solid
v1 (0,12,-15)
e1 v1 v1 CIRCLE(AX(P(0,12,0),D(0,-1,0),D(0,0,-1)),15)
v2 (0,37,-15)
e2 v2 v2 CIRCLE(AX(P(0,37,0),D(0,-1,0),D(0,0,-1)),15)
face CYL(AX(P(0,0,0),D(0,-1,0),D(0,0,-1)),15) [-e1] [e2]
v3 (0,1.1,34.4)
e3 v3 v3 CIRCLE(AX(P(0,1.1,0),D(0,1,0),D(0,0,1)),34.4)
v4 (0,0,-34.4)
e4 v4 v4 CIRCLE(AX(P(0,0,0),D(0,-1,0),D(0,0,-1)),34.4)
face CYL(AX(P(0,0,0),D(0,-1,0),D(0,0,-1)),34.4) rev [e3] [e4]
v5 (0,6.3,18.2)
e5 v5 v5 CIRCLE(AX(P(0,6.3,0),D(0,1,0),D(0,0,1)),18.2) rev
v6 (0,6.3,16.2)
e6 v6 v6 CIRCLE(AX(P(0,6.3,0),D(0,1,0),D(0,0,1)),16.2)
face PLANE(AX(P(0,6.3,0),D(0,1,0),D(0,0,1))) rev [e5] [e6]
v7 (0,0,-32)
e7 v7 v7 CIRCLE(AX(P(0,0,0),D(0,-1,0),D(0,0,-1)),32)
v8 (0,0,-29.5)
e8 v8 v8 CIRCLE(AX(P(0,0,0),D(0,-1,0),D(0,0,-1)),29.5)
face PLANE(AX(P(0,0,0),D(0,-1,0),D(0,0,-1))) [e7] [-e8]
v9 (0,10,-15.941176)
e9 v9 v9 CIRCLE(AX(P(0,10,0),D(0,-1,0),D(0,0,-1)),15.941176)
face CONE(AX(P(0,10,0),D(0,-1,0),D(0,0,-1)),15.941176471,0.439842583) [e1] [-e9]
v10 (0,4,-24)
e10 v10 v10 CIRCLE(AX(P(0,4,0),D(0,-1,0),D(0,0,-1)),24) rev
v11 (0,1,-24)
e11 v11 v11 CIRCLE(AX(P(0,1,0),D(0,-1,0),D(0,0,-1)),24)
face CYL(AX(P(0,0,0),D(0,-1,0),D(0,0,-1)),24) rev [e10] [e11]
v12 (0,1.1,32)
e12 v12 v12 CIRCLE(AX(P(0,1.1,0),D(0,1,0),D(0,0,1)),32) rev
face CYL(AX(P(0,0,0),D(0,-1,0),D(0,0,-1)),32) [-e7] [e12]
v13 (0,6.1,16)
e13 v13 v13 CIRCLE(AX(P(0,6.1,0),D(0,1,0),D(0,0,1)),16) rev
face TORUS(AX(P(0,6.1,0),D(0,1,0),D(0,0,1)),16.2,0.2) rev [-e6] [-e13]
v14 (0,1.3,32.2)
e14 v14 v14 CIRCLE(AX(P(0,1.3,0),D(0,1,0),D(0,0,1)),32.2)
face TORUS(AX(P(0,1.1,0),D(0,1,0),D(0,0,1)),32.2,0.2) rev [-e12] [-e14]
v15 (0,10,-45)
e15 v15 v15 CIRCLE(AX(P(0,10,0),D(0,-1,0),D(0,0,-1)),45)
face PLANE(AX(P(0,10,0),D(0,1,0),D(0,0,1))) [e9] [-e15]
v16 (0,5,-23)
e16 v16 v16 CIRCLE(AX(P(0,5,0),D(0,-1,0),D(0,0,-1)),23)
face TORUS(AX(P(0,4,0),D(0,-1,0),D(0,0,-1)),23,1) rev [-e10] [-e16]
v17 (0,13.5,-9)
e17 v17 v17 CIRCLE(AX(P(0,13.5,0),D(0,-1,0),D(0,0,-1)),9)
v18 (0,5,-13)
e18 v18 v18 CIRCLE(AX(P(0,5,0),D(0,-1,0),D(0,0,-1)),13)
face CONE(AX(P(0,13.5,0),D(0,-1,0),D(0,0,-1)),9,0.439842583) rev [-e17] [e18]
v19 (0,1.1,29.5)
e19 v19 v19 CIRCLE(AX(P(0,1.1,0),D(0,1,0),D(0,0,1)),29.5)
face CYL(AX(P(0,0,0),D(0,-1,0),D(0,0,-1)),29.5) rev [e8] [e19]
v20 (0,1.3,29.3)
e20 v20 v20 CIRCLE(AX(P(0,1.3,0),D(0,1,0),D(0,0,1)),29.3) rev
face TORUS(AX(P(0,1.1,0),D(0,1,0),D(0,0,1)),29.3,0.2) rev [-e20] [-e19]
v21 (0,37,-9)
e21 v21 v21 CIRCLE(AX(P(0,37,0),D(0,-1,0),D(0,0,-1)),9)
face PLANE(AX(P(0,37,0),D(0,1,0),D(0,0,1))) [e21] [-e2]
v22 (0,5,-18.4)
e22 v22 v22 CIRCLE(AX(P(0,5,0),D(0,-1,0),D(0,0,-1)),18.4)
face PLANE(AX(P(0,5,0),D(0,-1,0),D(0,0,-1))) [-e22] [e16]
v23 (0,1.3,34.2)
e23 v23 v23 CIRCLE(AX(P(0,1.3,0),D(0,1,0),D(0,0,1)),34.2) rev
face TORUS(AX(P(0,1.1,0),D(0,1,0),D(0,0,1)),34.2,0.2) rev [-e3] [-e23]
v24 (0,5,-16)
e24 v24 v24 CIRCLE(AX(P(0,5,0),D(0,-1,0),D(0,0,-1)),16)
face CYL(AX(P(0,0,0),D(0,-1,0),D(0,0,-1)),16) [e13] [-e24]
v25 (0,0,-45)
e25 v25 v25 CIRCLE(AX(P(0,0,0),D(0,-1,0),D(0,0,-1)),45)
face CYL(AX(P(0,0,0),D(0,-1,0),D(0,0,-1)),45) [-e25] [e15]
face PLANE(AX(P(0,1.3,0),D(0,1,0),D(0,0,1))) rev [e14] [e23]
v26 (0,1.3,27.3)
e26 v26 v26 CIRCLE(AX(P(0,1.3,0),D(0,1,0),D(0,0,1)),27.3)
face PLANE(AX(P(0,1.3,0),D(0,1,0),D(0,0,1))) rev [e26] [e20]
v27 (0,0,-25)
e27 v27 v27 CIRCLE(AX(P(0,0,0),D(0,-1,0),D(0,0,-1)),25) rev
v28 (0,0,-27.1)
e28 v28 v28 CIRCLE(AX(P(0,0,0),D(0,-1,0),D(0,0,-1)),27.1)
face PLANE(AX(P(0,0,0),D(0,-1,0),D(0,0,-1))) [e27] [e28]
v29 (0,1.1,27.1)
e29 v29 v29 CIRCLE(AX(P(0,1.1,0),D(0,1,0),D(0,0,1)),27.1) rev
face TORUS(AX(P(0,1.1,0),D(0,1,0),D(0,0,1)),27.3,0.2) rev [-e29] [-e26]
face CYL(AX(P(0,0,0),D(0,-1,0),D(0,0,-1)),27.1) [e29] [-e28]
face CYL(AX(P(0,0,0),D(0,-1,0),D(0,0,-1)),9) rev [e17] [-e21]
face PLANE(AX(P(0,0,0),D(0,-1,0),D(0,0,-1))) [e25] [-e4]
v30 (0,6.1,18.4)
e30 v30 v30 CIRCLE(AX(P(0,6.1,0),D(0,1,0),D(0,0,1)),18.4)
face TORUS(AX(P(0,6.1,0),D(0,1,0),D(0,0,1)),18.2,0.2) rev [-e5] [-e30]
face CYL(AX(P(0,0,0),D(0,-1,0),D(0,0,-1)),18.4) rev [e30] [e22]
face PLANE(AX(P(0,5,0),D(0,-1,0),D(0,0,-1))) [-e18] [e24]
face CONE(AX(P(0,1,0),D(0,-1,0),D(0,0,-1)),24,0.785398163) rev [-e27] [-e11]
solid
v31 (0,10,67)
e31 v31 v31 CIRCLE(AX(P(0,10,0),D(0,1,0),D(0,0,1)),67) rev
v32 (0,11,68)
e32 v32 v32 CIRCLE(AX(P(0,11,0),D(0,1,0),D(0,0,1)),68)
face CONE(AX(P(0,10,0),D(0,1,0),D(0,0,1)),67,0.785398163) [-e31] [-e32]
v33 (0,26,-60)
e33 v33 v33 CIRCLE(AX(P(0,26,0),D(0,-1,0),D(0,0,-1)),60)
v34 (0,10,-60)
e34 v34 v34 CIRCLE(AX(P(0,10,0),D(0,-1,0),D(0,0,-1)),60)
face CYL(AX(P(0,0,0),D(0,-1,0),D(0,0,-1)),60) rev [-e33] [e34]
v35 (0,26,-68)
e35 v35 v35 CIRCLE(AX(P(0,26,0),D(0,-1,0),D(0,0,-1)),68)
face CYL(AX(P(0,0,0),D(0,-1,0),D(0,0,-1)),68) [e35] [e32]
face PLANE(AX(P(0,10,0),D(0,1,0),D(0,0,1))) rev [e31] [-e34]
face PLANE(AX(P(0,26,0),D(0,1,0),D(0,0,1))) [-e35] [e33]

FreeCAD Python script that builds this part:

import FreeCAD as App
import Part
import Sketcher
from FreeCAD import Vector


def edges_at(feature, points):
    """Names of the edges that pass closest to the given points."""
    edges = feature.Shape.Edges
    near = lambda p: min(range(len(edges)), key=lambda i: edges[i].distToShape(Part.Vertex(*p))[0])
    return sorted({f"Edge{near(p) + 1}" for p in points})

doc = App.newDocument("Part")
params = doc.addObject("Spreadsheet::Sheet", "Params")
for row, (alias, value) in enumerate([
    ("sketch1_width", "8 mm"),
    ("sketch1_width2", "3 mm"),
    ("sketch1_width3", "6 mm"),
    ("sketch1_height", "16 mm"),
    ("sketch1_height2", "10 mm"),
    ("revolution_angle", "360 deg"),
    ("chamfer_size", "1 mm"),
    ("fillet_radius", "1 mm"),
    ("fillet2_radius", "0.2 mm"),
    ("chamfer2_size", "1 mm"),
], start=1):
    params.set(f"A{row}", alias)
    params.set(f"B{row}", "=" + value)
    params.setAlias(f"B{row}", alias)

body = doc.addObject("PartDesign::Body", "Body")
body.AllowCompound = True

sketch1 = body.newObject("Sketcher::SketchObject", "Sketch")
sketch1.AttachmentSupport = (doc.getObject("XY_Plane"), [""])
sketch1.MapMode = "FlatFace"
sketch1.addGeometry(Part.LineSegment(Vector(-68, 26, 0), Vector(-68, 10, 0)), False)
sketch1.addGeometry(Part.LineSegment(Vector(-68, 10, 0), Vector(-60, 10, 0)), False)
sketch1.addGeometry(Part.LineSegment(Vector(-60, 10, 0), Vector(-60, 26, 0)), False)
sketch1.addGeometry(Part.LineSegment(Vector(-60, 26, 0), Vector(-68, 26, 0)), False)
sketch1.addGeometry(Part.LineSegment(Vector(-45, 10, 0), Vector(-45, 0, 0)), False)
sketch1.addGeometry(Part.LineSegment(Vector(-45, 0, 0), Vector(-34.4, 0, 0)), False)
sketch1.addGeometry(Part.LineSegment(Vector(-34.4, 0, 0), Vector(-34.4, 1.3, 0)), False)
sketch1.addGeometry(Part.LineSegment(Vector(-34.4, 1.3, 0), Vector(-32, 1.3, 0)), False)
sketch1.addGeometry(Part.LineSegment(Vector(-32, 1.3, 0), Vector(-32, 0, 0)), False)
sketch1.addGeometry(Part.LineSegment(Vector(-32, 0, 0), Vector(-29.5, 0, 0)), False)
sketch1.addGeometry(Part.LineSegment(Vector(-29.5, 0, 0), Vector(-29.5, 1.3, 0)), False)
sketch1.addGeometry(Part.LineSegment(Vector(-29.5, 1.3, 0), Vector(-27.1, 1.3, 0)), False)
sketch1.addGeometry(Part.LineSegment(Vector(-27.1, 1.3, 0), Vector(-27.1, 0, 0)), False)
sketch1.addGeometry(Part.LineSegment(Vector(-27.1, 0, 0), Vector(-24, 0, 0)), False)
sketch1.addGeometry(Part.LineSegment(Vector(-24, 0, 0), Vector(-24, 5, 0)), False)
sketch1.addGeometry(Part.LineSegment(Vector(-24, 5, 0), Vector(-18.4, 5, 0)), False)
sketch1.addGeometry(Part.LineSegment(Vector(-18.4, 5, 0), Vector(-18.4, 6.3, 0)), False)
sketch1.addGeometry(Part.LineSegment(Vector(-18.4, 6.3, 0), Vector(-16, 6.3, 0)), False)
sketch1.addGeometry(Part.LineSegment(Vector(-16, 6.3, 0), Vector(-16, 5, 0)), False)
sketch1.addGeometry(Part.LineSegment(Vector(-16, 5, 0), Vector(-13, 5, 0)), False)
sketch1.addGeometry(Part.LineSegment(Vector(-13, 5, 0), Vector(-9, 13.5, 0)), False)
sketch1.addGeometry(Part.LineSegment(Vector(-9, 13.5, 0), Vector(-9, 37, 0)), False)
sketch1.addGeometry(Part.LineSegment(Vector(-9, 37, 0), Vector(-15, 37, 0)), False)
sketch1.addGeometry(Part.LineSegment(Vector(-15, 37, 0), Vector(-15, 12, 0)), False)
sketch1.addGeometry(Part.LineSegment(Vector(-15, 12, 0), Vector(-15.9, 10, 0)), False)
sketch1.addGeometry(Part.LineSegment(Vector(-15.9, 10, 0), Vector(-45, 10, 0)), False)
sketch1.addConstraint(Sketcher.Constraint("Coincident", 0, 2, 1, 1))
sketch1.addConstraint(Sketcher.Constraint("Coincident", 1, 2, 2, 1))
sketch1.addConstraint(Sketcher.Constraint("Coincident", 2, 2, 3, 1))
sketch1.addConstraint(Sketcher.Constraint("Coincident", 3, 2, 0, 1))
sketch1.addConstraint(Sketcher.Constraint("Coincident", 4, 2, 5, 1))
sketch1.addConstraint(Sketcher.Constraint("Coincident", 5, 2, 6, 1))
sketch1.addConstraint(Sketcher.Constraint("Coincident", 6, 2, 7, 1))
sketch1.addConstraint(Sketcher.Constraint("Coincident", 7, 2, 8, 1))
sketch1.addConstraint(Sketcher.Constraint("Coincident", 8, 2, 9, 1))
sketch1.addConstraint(Sketcher.Constraint("Coincident", 9, 2, 10, 1))
sketch1.addConstraint(Sketcher.Constraint("Coincident", 10, 2, 11, 1))
sketch1.addConstraint(Sketcher.Constraint("Coincident", 11, 2, 12, 1))
sketch1.addConstraint(Sketcher.Constraint("Coincident", 12, 2, 13, 1))
sketch1.addConstraint(Sketcher.Constraint("Coincident", 13, 2, 14, 1))
sketch1.addConstraint(Sketcher.Constraint("Coincident", 14, 2, 15, 1))
sketch1.addConstraint(Sketcher.Constraint("Coincident", 15, 2, 16, 1))
sketch1.addConstraint(Sketcher.Constraint("Coincident", 16, 2, 17, 1))
sketch1.addConstraint(Sketcher.Constraint("Coincident", 17, 2, 18, 1))
sketch1.addConstraint(Sketcher.Constraint("Coincident", 18, 2, 19, 1))
sketch1.addConstraint(Sketcher.Constraint("Coincident", 19, 2, 20, 1))
sketch1.addConstraint(Sketcher.Constraint("Coincident", 20, 2, 21, 1))
sketch1.addConstraint(Sketcher.Constraint("Coincident", 21, 2, 22, 1))
sketch1.addConstraint(Sketcher.Constraint("Coincident", 22, 2, 23, 1))
sketch1.addConstraint(Sketcher.Constraint("Coincident", 23, 2, 24, 1))
sketch1.addConstraint(Sketcher.Constraint("Coincident", 24, 2, 25, 1))
sketch1.addConstraint(Sketcher.Constraint("Coincident", 25, 2, 4, 1))
sketch1.addConstraint(Sketcher.Constraint("Vertical", 0))
sketch1.addConstraint(Sketcher.Constraint("Horizontal", 1))
sketch1.addConstraint(Sketcher.Constraint("Vertical", 2))
sketch1.addConstraint(Sketcher.Constraint("Horizontal", 3))
sketch1.addConstraint(Sketcher.Constraint("Vertical", 4))
sketch1.addConstraint(Sketcher.Constraint("Horizontal", 5))
sketch1.addConstraint(Sketcher.Constraint("Vertical", 6))
sketch1.addConstraint(Sketcher.Constraint("Horizontal", 7))
sketch1.addConstraint(Sketcher.Constraint("Vertical", 8))
sketch1.addConstraint(Sketcher.Constraint("Horizontal", 9))
sketch1.addConstraint(Sketcher.Constraint("Vertical", 10))
sketch1.addConstraint(Sketcher.Constraint("Horizontal", 11))
sketch1.addConstraint(Sketcher.Constraint("Vertical", 12))
sketch1.addConstraint(Sketcher.Constraint("Horizontal", 13))
sketch1.addConstraint(Sketcher.Constraint("Vertical", 14))
sketch1.addConstraint(Sketcher.Constraint("Horizontal", 15))
sketch1.addConstraint(Sketcher.Constraint("Vertical", 16))
sketch1.addConstraint(Sketcher.Constraint("Horizontal", 17))
sketch1.addConstraint(Sketcher.Constraint("Vertical", 18))
sketch1.addConstraint(Sketcher.Constraint("Horizontal", 19))
sketch1.addConstraint(Sketcher.Constraint("Vertical", 21))
sketch1.addConstraint(Sketcher.Constraint("Horizontal", 22))
sketch1.addConstraint(Sketcher.Constraint("Vertical", 23))
sketch1.addConstraint(Sketcher.Constraint("Horizontal", 25))
sketch1.addConstraint(Sketcher.Constraint("PointOnObject", 4, 2, -1))
sketch1.addConstraint(Sketcher.Constraint("PointOnObject", 8, 2, -1))
sketch1.addConstraint(Sketcher.Constraint("PointOnObject", 12, 2, -1))
sketch1.addConstraint(Sketcher.Constraint("Parallel", 20, 24))
sketch1.addConstraint(Sketcher.Constraint("Horizontal", 7, 2, 10, 2))
sketch1.addConstraint(Sketcher.Constraint("Horizontal", 15, 2, 18, 2))
sketch1.addConstraint(Sketcher.Constraint("Horizontal", 1, 2, 24, 2))
sketch1.addConstraint(Sketcher.Constraint("Equal", 7, 11))
sketch1.addConstraint(Sketcher.Constraint("Equal", 11, 17))
sketch1.addConstraint(Sketcher.Constraint("Equal", 12, 16))
sketch1.addConstraint(Sketcher.Constraint("DistanceX", 1, 1, 1, 2, 8.0))
sketch1.addConstraint(Sketcher.Constraint("DistanceX", 19, 1, 19, 2, 3.0))
sketch1.addConstraint(Sketcher.Constraint("DistanceX", 22, 2, 22, 1, 6.0))
sketch1.addConstraint(Sketcher.Constraint("DistanceY", 0, 2, 0, 1, 16.0))
sketch1.addConstraint(Sketcher.Constraint("DistanceY", 4, 2, 4, 1, 10.0))
sketch1.addConstraint(Sketcher.Constraint("DistanceY", 14, 1, 14, 2, 5.0))
sketch1.addConstraint(Sketcher.Constraint("DistanceY", 23, 2, 23, 1, 25.0))
sketch1.addConstraint(Sketcher.Constraint("DistanceX", 5, 1, 5, 2, 10.6))
sketch1.addConstraint(Sketcher.Constraint("DistanceX", 7, 1, 7, 2, 2.4))
sketch1.addConstraint(Sketcher.Constraint("DistanceX", 9, 1, 9, 2, 2.5))
sketch1.addConstraint(Sketcher.Constraint("DistanceX", 13, 1, 13, 2, 3.1))
sketch1.addConstraint(Sketcher.Constraint("DistanceX", 15, 1, 15, 2, 5.6))
sketch1.addConstraint(Sketcher.Constraint("DistanceY", 6, 1, 6, 2, 1.3))
sketch1.addConstraint(Sketcher.Constraint("DistanceY", 21, 1, 21, 2, 23.5))
sketch1.addConstraint(Sketcher.Constraint("DistanceX", 0, 2, -1, 1, 68.0))
sketch1.addConstraint(Sketcher.Constraint("DistanceX", 4, 2, -1, 1, 45.0))
sketch1.addConstraint(Sketcher.Constraint("DistanceX", 20, 2, -1, 1, 9.0))
sketch1.addConstraint(Sketcher.Constraint("DistanceY", -1, 1, 21, 2, 37.0))
sketch1.setExpression("Constraints[60]", "Params.sketch1_width")
sketch1.setExpression("Constraints[61]", "Params.sketch1_width2")
sketch1.setExpression("Constraints[62]", "Params.sketch1_width3")
sketch1.setExpression("Constraints[63]", "Params.sketch1_height")
sketch1.setExpression("Constraints[64]", "Params.sketch1_height2")
revolution = body.newObject("PartDesign::Revolution", "Revolution")
revolution.Profile = sketch1
revolution.ReferenceAxis = (sketch1, ["V_Axis"])
revolution.setExpression("Angle", "Params.revolution_angle")
doc.recompute()

chamfer = body.newObject("PartDesign::Chamfer", "Chamfer")
chamfer.Base = (revolution, edges_at(revolution, [(0, 0, 24)]))
chamfer.setExpression("Size", "Params.chamfer_size")
doc.recompute()

fillet = body.newObject("PartDesign::Fillet", "Fillet")
fillet.Base = (chamfer, edges_at(chamfer, [(0, 5, 24)]))
fillet.setExpression("Radius", "Params.fillet_radius")
doc.recompute()

fillet2 = body.newObject("PartDesign::Fillet", "Fillet001")
fillet2.Base = (fillet, edges_at(fillet, [
    (0, 6.3, 16),
    (0, 6.3, 18.4),
    (0, 1.3, 27.1),
    (0, 1.3, 29.5),
    (0, 1.3, 32),
    (0, 1.3, 34.4),
]))
fillet2.setExpression("Radius", "Params.fillet2_radius")
doc.recompute()

chamfer2 = body.newObject("PartDesign::Chamfer", "Chamfer001")
chamfer2.Base = (fillet2, edges_at(fillet2, [(0, 10, 68)]))
chamfer2.setExpression("Size", "Params.chamfer2_size")

doc.recompute()
